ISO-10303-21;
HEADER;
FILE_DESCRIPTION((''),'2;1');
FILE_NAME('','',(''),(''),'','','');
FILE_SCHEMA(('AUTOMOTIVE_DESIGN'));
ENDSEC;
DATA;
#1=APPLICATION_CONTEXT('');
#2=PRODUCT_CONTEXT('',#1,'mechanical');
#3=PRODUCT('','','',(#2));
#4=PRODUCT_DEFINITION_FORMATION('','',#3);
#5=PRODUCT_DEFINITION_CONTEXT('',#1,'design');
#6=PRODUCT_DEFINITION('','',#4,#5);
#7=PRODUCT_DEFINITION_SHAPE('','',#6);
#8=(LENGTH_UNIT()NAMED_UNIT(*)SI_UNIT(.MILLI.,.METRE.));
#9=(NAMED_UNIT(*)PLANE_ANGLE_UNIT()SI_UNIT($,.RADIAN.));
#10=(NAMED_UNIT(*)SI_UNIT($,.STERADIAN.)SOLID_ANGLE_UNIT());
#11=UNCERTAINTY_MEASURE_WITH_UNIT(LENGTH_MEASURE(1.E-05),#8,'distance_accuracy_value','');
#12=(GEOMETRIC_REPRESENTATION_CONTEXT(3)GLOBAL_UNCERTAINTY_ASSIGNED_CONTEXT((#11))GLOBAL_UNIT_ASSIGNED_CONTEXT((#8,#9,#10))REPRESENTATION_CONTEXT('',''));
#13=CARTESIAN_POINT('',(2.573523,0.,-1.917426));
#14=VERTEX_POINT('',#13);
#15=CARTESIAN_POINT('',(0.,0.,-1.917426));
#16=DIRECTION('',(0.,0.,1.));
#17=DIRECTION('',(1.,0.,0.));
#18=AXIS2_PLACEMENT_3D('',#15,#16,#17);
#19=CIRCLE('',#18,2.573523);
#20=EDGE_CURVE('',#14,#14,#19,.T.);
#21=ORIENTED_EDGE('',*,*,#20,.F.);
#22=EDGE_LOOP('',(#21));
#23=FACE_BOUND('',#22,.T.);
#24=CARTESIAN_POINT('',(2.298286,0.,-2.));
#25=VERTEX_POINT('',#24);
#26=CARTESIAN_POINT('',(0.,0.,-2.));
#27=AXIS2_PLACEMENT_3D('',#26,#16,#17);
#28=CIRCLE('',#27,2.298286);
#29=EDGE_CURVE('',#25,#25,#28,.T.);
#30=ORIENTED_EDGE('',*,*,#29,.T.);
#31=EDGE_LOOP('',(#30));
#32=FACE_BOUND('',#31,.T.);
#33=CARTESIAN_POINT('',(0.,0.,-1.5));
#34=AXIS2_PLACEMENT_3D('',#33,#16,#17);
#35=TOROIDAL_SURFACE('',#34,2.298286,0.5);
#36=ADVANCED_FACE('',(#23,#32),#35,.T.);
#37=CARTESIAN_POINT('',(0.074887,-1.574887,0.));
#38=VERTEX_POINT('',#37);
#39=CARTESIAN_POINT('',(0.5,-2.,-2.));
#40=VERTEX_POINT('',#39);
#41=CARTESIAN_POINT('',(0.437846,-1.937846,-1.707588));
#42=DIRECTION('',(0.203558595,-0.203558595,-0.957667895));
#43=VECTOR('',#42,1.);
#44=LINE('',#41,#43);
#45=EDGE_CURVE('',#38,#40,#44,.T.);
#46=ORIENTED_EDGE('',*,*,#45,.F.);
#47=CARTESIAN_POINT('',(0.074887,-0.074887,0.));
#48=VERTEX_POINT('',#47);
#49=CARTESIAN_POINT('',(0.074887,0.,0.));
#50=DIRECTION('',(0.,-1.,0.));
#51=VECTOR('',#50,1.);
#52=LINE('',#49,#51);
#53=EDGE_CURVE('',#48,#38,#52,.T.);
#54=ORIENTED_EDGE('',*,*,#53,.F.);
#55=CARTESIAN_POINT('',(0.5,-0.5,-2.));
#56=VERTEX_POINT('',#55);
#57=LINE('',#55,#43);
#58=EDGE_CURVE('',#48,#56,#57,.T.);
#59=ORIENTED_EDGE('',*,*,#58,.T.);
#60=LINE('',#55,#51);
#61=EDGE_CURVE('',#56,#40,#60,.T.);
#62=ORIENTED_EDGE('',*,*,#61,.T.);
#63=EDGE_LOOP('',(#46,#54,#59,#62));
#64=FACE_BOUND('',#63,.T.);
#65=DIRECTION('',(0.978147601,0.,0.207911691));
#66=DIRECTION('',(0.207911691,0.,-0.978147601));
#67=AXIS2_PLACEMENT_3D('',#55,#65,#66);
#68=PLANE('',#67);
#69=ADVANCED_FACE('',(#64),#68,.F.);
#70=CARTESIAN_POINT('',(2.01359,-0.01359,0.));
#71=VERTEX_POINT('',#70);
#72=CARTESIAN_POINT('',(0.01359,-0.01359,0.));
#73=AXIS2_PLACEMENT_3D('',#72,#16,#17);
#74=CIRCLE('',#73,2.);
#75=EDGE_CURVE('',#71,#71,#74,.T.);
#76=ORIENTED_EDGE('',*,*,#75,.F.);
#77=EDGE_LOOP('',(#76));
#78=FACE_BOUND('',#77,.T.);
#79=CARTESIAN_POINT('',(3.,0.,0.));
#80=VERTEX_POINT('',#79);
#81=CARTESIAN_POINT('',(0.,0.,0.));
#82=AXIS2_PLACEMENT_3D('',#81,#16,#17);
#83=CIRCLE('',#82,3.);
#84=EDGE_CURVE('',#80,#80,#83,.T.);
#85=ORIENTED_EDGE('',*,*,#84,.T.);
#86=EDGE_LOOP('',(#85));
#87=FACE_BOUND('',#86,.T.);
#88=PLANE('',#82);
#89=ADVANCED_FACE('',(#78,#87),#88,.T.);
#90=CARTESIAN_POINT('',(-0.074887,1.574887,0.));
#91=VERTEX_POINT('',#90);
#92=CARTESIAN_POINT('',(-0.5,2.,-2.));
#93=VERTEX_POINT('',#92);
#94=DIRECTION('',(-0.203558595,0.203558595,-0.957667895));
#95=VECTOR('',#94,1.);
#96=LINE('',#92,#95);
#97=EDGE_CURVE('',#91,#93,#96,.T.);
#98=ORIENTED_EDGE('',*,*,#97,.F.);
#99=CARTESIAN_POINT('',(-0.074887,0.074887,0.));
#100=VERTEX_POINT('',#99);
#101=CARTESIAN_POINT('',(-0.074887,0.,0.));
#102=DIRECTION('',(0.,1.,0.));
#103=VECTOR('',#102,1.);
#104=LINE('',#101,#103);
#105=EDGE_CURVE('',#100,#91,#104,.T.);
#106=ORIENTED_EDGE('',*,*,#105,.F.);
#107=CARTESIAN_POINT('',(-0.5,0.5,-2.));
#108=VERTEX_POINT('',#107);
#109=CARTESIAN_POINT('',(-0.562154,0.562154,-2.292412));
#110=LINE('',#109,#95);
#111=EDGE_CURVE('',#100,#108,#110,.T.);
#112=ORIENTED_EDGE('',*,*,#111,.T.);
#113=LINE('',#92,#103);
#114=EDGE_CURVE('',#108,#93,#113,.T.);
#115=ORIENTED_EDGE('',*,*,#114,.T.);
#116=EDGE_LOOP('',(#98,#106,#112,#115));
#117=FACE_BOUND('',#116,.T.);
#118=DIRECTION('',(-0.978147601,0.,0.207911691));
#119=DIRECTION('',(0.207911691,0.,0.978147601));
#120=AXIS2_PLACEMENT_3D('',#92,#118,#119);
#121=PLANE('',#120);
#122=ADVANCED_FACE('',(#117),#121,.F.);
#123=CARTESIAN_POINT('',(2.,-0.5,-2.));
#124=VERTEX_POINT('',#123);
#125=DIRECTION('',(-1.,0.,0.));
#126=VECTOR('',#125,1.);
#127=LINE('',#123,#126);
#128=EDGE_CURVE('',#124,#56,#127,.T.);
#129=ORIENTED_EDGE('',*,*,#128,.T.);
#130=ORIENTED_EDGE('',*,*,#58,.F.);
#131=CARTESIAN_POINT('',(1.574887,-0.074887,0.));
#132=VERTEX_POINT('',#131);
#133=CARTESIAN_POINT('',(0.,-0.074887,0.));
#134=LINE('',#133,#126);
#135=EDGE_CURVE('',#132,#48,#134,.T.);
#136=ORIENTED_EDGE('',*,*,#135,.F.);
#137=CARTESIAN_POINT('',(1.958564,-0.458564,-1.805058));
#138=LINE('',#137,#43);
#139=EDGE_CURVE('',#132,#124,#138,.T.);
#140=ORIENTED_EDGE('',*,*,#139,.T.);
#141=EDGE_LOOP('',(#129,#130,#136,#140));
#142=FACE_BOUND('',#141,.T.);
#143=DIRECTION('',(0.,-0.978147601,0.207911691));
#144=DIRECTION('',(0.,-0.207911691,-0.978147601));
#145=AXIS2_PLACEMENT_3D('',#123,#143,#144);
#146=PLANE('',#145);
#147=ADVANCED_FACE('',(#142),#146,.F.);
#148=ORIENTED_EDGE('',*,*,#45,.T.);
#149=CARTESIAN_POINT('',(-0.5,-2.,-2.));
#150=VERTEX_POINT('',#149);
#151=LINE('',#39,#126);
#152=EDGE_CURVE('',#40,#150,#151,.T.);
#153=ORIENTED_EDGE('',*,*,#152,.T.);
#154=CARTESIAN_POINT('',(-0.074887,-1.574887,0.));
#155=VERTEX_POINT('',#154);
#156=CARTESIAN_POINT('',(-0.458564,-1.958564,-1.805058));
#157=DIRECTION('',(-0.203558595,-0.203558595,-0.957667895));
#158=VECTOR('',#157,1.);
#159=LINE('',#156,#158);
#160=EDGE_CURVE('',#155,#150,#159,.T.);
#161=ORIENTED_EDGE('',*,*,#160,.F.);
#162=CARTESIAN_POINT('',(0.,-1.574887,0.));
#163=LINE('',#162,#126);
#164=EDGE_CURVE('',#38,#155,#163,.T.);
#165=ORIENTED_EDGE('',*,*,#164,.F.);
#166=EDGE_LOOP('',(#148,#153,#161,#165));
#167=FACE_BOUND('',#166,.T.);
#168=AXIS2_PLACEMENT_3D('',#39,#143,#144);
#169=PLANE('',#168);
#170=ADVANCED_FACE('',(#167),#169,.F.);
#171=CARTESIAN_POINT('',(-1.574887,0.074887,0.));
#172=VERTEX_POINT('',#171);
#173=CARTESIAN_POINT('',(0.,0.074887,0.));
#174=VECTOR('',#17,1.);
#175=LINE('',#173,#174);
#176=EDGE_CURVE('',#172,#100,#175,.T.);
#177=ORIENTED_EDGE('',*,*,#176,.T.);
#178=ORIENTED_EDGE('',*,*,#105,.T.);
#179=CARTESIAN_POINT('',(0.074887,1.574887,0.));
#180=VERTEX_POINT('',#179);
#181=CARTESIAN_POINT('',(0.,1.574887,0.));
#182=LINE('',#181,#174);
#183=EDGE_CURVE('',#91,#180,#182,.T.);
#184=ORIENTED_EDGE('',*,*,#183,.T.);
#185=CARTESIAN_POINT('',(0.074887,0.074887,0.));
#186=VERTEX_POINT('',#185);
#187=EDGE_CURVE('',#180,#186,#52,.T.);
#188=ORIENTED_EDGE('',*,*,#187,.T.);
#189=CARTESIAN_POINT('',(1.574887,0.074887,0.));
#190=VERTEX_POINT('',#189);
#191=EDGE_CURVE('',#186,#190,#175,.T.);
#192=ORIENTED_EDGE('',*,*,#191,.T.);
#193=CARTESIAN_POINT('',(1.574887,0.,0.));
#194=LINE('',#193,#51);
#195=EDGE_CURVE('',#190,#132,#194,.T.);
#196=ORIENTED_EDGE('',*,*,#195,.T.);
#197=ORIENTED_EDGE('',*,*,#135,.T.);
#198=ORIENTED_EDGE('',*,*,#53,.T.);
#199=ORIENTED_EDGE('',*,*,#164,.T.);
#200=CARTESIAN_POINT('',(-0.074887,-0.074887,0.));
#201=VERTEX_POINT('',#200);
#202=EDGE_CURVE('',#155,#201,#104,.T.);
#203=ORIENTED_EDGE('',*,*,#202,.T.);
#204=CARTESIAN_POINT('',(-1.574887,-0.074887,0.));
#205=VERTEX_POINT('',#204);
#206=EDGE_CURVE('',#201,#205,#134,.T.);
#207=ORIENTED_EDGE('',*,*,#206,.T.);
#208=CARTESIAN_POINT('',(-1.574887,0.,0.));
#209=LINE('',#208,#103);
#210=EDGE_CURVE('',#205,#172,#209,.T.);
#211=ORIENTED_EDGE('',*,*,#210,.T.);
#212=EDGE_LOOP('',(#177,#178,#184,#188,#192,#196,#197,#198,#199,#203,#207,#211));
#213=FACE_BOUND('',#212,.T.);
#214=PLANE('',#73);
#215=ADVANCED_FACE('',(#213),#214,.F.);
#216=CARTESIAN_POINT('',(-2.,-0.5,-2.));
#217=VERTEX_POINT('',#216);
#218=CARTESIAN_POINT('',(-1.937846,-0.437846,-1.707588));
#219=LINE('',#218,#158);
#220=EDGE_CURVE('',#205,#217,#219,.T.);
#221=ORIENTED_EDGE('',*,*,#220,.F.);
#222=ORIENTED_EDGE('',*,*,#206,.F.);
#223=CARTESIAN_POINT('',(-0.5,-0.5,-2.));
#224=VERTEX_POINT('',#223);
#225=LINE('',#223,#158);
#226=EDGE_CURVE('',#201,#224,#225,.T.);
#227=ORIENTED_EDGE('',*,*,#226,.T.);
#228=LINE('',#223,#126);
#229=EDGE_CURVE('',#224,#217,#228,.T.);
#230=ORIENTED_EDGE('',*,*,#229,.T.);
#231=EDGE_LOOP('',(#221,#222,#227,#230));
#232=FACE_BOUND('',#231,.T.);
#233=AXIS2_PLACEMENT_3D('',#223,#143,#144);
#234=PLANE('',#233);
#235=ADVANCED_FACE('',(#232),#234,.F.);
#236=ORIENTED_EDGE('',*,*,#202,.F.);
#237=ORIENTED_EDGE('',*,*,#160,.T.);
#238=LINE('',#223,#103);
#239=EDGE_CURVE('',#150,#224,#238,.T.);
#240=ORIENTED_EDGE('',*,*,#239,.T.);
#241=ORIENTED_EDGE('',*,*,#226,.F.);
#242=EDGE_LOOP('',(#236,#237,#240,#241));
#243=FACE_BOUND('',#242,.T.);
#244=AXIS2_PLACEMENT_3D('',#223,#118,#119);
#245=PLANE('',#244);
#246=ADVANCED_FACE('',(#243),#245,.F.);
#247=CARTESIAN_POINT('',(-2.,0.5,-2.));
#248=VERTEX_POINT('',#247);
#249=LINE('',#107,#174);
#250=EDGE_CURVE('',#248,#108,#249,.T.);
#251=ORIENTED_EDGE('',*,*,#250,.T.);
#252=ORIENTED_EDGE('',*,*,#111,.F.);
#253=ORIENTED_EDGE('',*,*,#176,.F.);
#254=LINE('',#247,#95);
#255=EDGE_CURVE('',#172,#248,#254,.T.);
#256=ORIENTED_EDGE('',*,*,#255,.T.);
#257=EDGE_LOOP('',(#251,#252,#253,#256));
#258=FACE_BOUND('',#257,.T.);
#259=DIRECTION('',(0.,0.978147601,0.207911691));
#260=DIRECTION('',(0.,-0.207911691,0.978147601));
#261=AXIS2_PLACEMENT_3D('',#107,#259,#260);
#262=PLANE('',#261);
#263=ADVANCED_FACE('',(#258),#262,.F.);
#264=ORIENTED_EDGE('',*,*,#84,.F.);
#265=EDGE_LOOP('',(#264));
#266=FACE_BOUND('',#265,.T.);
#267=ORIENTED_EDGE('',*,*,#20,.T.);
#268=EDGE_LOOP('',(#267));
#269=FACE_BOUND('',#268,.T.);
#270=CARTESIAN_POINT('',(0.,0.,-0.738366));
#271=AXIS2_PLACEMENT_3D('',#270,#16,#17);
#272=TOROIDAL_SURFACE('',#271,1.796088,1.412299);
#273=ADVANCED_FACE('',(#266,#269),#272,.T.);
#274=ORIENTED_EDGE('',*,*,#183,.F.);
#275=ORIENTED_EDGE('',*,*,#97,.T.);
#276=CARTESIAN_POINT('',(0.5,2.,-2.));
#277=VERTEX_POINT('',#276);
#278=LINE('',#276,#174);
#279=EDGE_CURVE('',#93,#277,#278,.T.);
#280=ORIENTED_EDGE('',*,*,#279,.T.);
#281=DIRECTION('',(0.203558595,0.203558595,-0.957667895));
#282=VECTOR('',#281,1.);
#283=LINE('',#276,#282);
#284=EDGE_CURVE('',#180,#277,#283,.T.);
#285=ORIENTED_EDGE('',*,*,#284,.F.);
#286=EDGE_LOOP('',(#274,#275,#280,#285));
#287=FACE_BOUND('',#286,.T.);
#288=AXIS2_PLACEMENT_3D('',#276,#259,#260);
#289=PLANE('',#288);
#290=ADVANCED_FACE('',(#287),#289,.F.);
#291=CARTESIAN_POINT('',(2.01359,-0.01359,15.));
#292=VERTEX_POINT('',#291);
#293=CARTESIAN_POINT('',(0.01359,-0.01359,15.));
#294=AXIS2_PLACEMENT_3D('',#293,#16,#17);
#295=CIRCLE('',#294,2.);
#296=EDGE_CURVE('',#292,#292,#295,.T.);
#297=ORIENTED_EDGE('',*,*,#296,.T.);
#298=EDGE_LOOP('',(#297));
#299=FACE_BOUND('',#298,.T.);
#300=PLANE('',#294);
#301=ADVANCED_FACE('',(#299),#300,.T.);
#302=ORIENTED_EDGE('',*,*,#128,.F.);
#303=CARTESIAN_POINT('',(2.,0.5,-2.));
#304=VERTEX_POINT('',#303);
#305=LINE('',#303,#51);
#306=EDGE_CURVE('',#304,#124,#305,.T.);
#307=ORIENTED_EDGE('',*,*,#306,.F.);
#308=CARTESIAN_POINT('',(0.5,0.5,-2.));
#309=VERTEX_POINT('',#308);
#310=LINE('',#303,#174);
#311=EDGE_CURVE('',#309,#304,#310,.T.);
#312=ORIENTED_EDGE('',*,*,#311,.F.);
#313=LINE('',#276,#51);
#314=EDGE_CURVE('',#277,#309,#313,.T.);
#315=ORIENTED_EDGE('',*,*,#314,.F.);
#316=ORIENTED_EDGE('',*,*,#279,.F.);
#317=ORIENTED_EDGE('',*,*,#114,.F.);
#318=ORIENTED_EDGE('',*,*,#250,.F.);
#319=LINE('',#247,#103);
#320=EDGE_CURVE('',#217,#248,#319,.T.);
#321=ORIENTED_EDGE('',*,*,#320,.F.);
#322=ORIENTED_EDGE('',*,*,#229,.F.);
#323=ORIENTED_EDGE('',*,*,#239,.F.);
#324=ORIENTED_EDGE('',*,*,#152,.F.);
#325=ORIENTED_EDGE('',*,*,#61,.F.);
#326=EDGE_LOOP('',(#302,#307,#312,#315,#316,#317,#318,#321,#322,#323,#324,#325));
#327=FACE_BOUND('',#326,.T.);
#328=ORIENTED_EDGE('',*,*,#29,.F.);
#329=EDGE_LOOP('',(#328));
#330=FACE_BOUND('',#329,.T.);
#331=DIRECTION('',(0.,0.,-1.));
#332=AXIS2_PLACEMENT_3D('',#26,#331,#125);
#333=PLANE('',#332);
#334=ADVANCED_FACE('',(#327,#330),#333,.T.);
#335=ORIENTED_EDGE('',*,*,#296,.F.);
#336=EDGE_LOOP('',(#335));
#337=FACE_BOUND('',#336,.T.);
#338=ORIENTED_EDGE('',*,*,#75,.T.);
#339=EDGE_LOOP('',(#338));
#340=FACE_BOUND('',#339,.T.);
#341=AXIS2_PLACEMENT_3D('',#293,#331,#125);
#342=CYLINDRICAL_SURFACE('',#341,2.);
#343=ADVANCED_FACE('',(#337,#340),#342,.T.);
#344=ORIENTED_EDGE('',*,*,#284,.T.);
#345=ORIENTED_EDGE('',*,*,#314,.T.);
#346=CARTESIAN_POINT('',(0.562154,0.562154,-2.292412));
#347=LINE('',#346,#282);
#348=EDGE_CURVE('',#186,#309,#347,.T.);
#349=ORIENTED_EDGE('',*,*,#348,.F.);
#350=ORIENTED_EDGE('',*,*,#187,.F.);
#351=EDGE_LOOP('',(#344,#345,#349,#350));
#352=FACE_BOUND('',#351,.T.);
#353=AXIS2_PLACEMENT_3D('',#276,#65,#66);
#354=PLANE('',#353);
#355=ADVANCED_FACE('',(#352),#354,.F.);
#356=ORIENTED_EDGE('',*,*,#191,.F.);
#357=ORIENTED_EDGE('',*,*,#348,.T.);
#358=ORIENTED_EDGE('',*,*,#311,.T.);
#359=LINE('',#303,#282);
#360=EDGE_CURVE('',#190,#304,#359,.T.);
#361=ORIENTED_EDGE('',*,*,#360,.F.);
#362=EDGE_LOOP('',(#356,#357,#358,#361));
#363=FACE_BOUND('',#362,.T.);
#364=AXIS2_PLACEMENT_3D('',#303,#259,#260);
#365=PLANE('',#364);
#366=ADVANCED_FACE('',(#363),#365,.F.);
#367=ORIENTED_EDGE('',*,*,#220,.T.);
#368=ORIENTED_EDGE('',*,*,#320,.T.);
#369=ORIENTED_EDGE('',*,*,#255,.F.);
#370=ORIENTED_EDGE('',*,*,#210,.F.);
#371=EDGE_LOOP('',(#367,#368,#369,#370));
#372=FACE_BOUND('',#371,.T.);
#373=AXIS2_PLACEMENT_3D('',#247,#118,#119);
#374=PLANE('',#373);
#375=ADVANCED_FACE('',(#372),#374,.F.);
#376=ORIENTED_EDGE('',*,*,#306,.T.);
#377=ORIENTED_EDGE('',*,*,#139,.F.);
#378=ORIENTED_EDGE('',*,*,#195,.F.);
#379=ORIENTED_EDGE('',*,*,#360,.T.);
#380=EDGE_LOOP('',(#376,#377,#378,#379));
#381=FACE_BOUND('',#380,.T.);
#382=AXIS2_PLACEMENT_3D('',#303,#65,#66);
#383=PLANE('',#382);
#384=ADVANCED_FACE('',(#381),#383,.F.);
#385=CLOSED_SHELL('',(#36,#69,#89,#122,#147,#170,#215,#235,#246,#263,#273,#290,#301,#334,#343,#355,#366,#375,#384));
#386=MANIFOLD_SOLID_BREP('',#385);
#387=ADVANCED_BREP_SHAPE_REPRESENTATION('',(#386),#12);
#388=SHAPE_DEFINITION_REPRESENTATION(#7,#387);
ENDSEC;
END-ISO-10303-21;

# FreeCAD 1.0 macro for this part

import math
import FreeCAD as App
import Part
import Sketcher


def faces_at(feature, points):
    """Names of the faces that lie closest to the given points."""
    faces = feature.Shape.Faces
    near = lambda p: min(range(len(faces)), key=lambda i: faces[i].distToShape(Part.Vertex(*p))[0])
    return sorted({f"Face{near(p) + 1}" for p in points})

doc = App.newDocument("Part")
body = doc.addObject("PartDesign::Body", "Body")

# Sketch on XZ plane
sketch1 = body.newObject("Sketcher::SketchObject", "Sketch")
sketch1.AttachmentSupport = (doc.getObject("XZ_Plane"), [""])
sketch1.MapMode = "FlatFace"
sketch1.addGeometry([
    Part.LineSegment(App.Vector(0, -2, 0), App.Vector(0, 0, 0)),  # 0
    Part.LineSegment(App.Vector(0, 0, 0), App.Vector(3, 0, 0)),  # 1
    Part.ArcOfCircle(Part.Circle(App.Vector(1.796088, -0.738366, 0), App.Vector(0, 0, 1), 1.412299), math.radians(-56.600386), math.radians(31.521007)),  # 2
    Part.ArcOfCircle(Part.Circle(App.Vector(2.298286, -1.5, 0), App.Vector(0, 0, 1), 0.5), math.radians(-90), math.radians(-56.600387)),  # 3
    Part.LineSegment(App.Vector(2.298286, -2, 0), App.Vector(0, -2, 0)),  # 4
], False)
sketch1.addConstraint([
    Sketcher.Constraint("Coincident", 0, 2, 1, 1),
    Sketcher.Constraint("Coincident", 1, 2, 2, 2),
    Sketcher.Constraint("Tangent", 2, 1, 3, 2),
    Sketcher.Constraint("Tangent", 3, 1, 4, 1),
    Sketcher.Constraint("Coincident", 4, 2, 0, 1),
    Sketcher.Constraint("Vertical", 0),
    Sketcher.Constraint("Horizontal", 1),
    Sketcher.Constraint("Horizontal", 4),
    Sketcher.Constraint("Coincident", 0, 2, -1, 1),
    Sketcher.Constraint("Radius", 3, 0.5),
    Sketcher.Constraint("DistanceX", 1, 1, 1, 2, 3.0),
    Sketcher.Constraint("DistanceY", 0, 1, 0, 2, 2.0),
    Sketcher.Constraint("Radius", 2, 1.412299),
    Sketcher.Constraint("DistanceX", 4, 2, 4, 1, 2.298286),
])
revolution = body.newObject("PartDesign::Revolution", "Revolution")
revolution.Profile = sketch1
revolution.ReferenceAxis = (sketch1, ["V_Axis"])
revolution.Angle = 360
body2 = doc.addObject("PartDesign::Body", "Body001")

# Sketch on XY plane
sketch2 = body2.newObject("Sketcher::SketchObject", "Sketch001")
sketch2.AttachmentSupport = (doc.getObject("XY_Plane001"), [""])
sketch2.MapMode = "FlatFace"
sketch2.AttachmentOffset = App.Placement(App.Vector(0, 0, -2), App.Rotation())
sketch2.addGeometry([
    Part.LineSegment(App.Vector(-0.5, -0.5, 0), App.Vector(-2, -0.5, 0)),  # 0
    Part.LineSegment(App.Vector(-2, -0.5, 0), App.Vector(-2, 0.5, 0)),  # 1
    Part.LineSegment(App.Vector(-2, 0.5, 0), App.Vector(-0.5, 0.5, 0)),  # 2
    Part.LineSegment(App.Vector(-0.5, 0.5, 0), App.Vector(-0.5, 2, 0)),  # 3
    Part.LineSegment(App.Vector(-0.5, 2, 0), App.Vector(0.5, 2, 0)),  # 4
    Part.LineSegment(App.Vector(0.5, 2, 0), App.Vector(0.5, 0.5, 0)),  # 5
    Part.LineSegment(App.Vector(0.5, 0.5, 0), App.Vector(2, 0.5, 0)),  # 6
    Part.LineSegment(App.Vector(2, 0.5, 0), App.Vector(2, -0.5, 0)),  # 7
    Part.LineSegment(App.Vector(2, -0.5, 0), App.Vector(0.5, -0.5, 0)),  # 8
    Part.LineSegment(App.Vector(0.5, -0.5, 0), App.Vector(0.5, -2, 0)),  # 9
    Part.LineSegment(App.Vector(0.5, -2, 0), App.Vector(-0.5, -2, 0)),  # 10
    Part.LineSegment(App.Vector(-0.5, -2, 0), App.Vector(-0.5, -0.5, 0)),  # 11
], False)
sketch2.addConstraint([
    Sketcher.Constraint("Coincident", 0, 2, 1, 1),
    Sketcher.Constraint("Coincident", 1, 2, 2, 1),
    Sketcher.Constraint("Coincident", 2, 2, 3, 1),
    Sketcher.Constraint("Coincident", 3, 2, 4, 1),
    Sketcher.Constraint("Coincident", 4, 2, 5, 1),
    Sketcher.Constraint("Coincident", 5, 2, 6, 1),
    Sketcher.Constraint("Coincident", 6, 2, 7, 1),
    Sketcher.Constraint("Coincident", 7, 2, 8, 1),
    Sketcher.Constraint("Coincident", 8, 2, 9, 1),
    Sketcher.Constraint("Coincident", 9, 2, 10, 1),
    Sketcher.Constraint("Coincident", 10, 2, 11, 1),
    Sketcher.Constraint("Coincident", 11, 2, 0, 1),
    Sketcher.Constraint("Horizontal", 0),
    Sketcher.Constraint("Vertical", 1),
    Sketcher.Constraint("Horizontal", 2),
    Sketcher.Constraint("Vertical", 3),
    Sketcher.Constraint("Horizontal", 4),
    Sketcher.Constraint("Vertical", 5),
    Sketcher.Constraint("Horizontal", 6),
    Sketcher.Constraint("Vertical", 7),
    Sketcher.Constraint("Horizontal", 8),
    Sketcher.Constraint("Vertical", 9),
    Sketcher.Constraint("Horizontal", 10),
    Sketcher.Constraint("Vertical", 11),
    Sketcher.Constraint("Symmetric", 0, 2, 6, 2, -1, 1),
    Sketcher.Constraint("Symmetric", 2, 2, 8, 2, -1, 1),
    Sketcher.Constraint("Symmetric", 4, 2, 10, 2, -1, 1),
    Sketcher.Constraint("Symmetric", 2, 2, 5, 2, -2),
    Sketcher.Constraint("Equal", 10, 1),
    Sketcher.Constraint("Equal", 8, 3),
    Sketcher.Constraint("DistanceX", 4, 1, 4, 2, 1.0),
    Sketcher.Constraint("DistanceX", 0, 2, 0, 1, 1.5),
])
pad1 = body2.newObject("PartDesign::Pad", "Pad")
pad1.Profile = sketch2
pad1.Length = 2
doc.recompute()

datumplane = body2.newObject("PartDesign::Plane", "DatumPlane")
datumplane.AttachmentSupport = (doc.getObject("XY_Plane001"), [""])
datumplane.MapMode = "FlatFace"
datumplane.AttachmentOffset = App.Placement(App.Vector(0, 0, -2), App.Rotation())
draft = body2.newObject("PartDesign::Draft", "Draft")
draft.Base = (pad1, faces_at(pad1, [
    (-1.25, -0.5, -1),
    (-2, 0, -1),
    (-1.25, 0.5, -1),
    (-0.5, 1.25, -1),
    (0, 2, -1),
    (0.5, 1.25, -1),
    (1.25, 0.5, -1),
    (2, 0, -1),
    (1.25, -0.5, -1),
    (0.5, -1.25, -1),
    (0, -2, -1),
    (-0.5, -1.25, -1),
]))
draft.NeutralPlane = (datumplane, [""])
draft.Angle = 12
draft.Reversed = False
doc.recompute()

boolean = body.newObject("PartDesign::Boolean", "Boolean")
boolean.Type = "Cut"
boolean.addObjects([body2])

# Sketch on XY plane
sketch3 = body.newObject("Sketcher::SketchObject", "Sketch002")
sketch3.AttachmentSupport = (doc.getObject("XY_Plane"), [""])
sketch3.MapMode = "FlatFace"
sketch3.addGeometry(Part.Circle(App.Vector(0.01359, -0.01359, 0), App.Vector(0, 0, 1), 2), False)
sketch3.addConstraint([
    Sketcher.Constraint("Diameter", 0, 4.0),
    Sketcher.Constraint("DistanceX", -1, 1, 0, 3, 0.01359),
    Sketcher.Constraint("DistanceY", 0, 3, -1, 1, 0.01359),
])
pad2 = body.newObject("PartDesign::Pad", "Pad001")
pad2.Profile = sketch3
pad2.Length = 15

doc.recompute()
